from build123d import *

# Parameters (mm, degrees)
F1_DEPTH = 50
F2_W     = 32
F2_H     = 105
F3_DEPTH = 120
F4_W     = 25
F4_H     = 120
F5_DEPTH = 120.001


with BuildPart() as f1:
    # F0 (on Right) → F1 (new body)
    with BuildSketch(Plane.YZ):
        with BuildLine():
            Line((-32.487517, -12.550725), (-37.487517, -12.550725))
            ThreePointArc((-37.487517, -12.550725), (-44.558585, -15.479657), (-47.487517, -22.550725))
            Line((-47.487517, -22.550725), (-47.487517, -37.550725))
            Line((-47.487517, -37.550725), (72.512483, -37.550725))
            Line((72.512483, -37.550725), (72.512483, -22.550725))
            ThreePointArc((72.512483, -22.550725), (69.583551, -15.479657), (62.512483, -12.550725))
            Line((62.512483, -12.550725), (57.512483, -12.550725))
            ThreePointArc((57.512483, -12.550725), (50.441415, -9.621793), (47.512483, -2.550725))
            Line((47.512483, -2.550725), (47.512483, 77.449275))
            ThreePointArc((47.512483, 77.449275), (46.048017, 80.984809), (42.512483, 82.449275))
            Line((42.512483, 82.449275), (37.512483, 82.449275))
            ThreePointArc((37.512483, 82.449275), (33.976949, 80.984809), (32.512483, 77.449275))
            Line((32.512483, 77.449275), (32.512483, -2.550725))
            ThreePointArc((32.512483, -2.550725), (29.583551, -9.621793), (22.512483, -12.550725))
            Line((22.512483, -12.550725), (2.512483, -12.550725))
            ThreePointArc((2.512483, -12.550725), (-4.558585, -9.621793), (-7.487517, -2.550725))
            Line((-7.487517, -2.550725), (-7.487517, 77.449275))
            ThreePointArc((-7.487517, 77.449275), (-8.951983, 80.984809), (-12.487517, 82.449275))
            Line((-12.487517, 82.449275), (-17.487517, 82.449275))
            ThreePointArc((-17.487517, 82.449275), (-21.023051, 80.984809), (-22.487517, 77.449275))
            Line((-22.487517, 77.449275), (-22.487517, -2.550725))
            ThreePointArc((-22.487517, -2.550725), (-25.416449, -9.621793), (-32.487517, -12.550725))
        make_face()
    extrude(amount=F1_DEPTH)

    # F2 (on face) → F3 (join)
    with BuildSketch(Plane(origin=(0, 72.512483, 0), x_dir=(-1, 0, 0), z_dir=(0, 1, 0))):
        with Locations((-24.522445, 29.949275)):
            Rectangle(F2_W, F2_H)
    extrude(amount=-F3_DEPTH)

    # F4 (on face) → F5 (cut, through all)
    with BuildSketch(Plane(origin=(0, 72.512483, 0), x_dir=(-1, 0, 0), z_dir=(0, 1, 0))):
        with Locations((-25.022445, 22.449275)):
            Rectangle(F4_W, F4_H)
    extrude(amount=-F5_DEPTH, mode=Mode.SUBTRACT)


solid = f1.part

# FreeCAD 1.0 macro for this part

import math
import FreeCAD as App
import Part
import Sketcher

V = App.Vector
Q = App.Units.Quantity


def add_polygon(sketch, points):
    """Adds a closed chain of lines whose ends are joined by coincident constraints."""
    first, n = sketch.GeometryCount, len(points)
    for a, b in zip(points, points[1:] + points[:1]):
        sketch.addGeometry(Part.LineSegment(App.Vector(*a, 0), App.Vector(*b, 0)), False)
    for i in range(n):
        sketch.addConstraint(Sketcher.Constraint("Coincident", first + i, 2, first + (i + 1) % n, 1))

doc = App.newDocument("Part")
body = doc.addObject("PartDesign::Body", "Body")
body.AllowCompound = True

sketch1 = body.newObject("Sketcher::SketchObject", "Sketch")
sketch1.AttachmentSupport = (doc.getObject("YZ_Plane"), [""])
sketch1.MapMode = "FlatFace"
sketch1.addGeometry(Part.LineSegment(V(-32.487517, -12.550725, 0), V(-37.487517, -12.550725, 0)), False)
sketch1.addGeometry(Part.ArcOfCircle(Part.Circle(V(-37.487518, -22.550724, 0), V(0, 0, 1), 9.999999), math.radians(89.999996), math.radians(180.000004)), False)
sketch1.addGeometry(Part.LineSegment(V(-47.487517, -22.550725, 0), V(-47.487517, -37.550725, 0)), False)
sketch1.addGeometry(Part.LineSegment(V(-47.487517, -37.550725, 0), V(72.512483, -37.550725, 0)), False)
sketch1.addGeometry(Part.LineSegment(V(72.512483, -37.550725, 0), V(72.512483, -22.550725, 0)), False)
sketch1.addGeometry(Part.ArcOfCircle(Part.Circle(V(62.512484, -22.550724, 0), V(0, 0, 1), 9.999999), math.radians(-0.000004), math.radians(90.000004)), False)
sketch1.addGeometry(Part.LineSegment(V(62.512483, -12.550725, 0), V(57.512483, -12.550725, 0)), False)
sketch1.addGeometry(Part.ArcOfCircle(Part.Circle(V(57.512482, -2.550726, 0), V(0, 0, 1), 9.999999), math.radians(179.999996), math.radians(270.000004)), False)
sketch1.addGeometry(Part.LineSegment(V(47.512483, -2.550725, 0), V(47.512483, 77.449275, 0)), False)
sketch1.addGeometry(Part.ArcOfCircle(Part.Circle(V(42.512483, 77.449275, 0), V(0, 0, 1), 5), math.radians(-0.000004), math.radians(90.000004)), False)
sketch1.addGeometry(Part.LineSegment(V(42.512483, 82.449275, 0), V(37.512483, 82.449275, 0)), False)
sketch1.addGeometry(Part.ArcOfCircle(Part.Circle(V(37.512483, 77.449275, 0), V(0, 0, 1), 5), math.radians(89.999996), math.radians(180.000004)), False)
sketch1.addGeometry(Part.LineSegment(V(32.512483, 77.449275, 0), V(32.512483, -2.550725, 0)), False)
sketch1.addGeometry(Part.ArcOfCircle(Part.Circle(V(22.512484, -2.550726, 0), V(0, 0, 1), 9.999999), math.radians(-90.000004), math.radians(0.000004)), False)
sketch1.addGeometry(Part.LineSegment(V(22.512483, -12.550725, 0), V(2.512483, -12.550725, 0)), False)
sketch1.addGeometry(Part.ArcOfCircle(Part.Circle(V(2.512482, -2.550726, 0), V(0, 0, 1), 9.999999), math.radians(179.999996), math.radians(270.000004)), False)
sketch1.addGeometry(Part.LineSegment(V(-7.487517, -2.550725, 0), V(-7.487517, 77.449275, 0)), False)
sketch1.addGeometry(Part.ArcOfCircle(Part.Circle(V(-12.487517, 77.449275, 0), V(0, 0, 1), 5), math.radians(-0.000004), math.radians(90.000004)), False)
sketch1.addGeometry(Part.LineSegment(V(-12.487517, 82.449275, 0), V(-17.487517, 82.449275, 0)), False)
sketch1.addGeometry(Part.ArcOfCircle(Part.Circle(V(-17.487517, 77.449275, 0), V(0, 0, 1), 5), math.radians(89.999996), math.radians(180.000004)), False)
sketch1.addGeometry(Part.LineSegment(V(-22.487517, 77.449275, 0), V(-22.487517, -2.550725, 0)), False)
sketch1.addGeometry(Part.ArcOfCircle(Part.Circle(V(-32.487516, -2.550726, 0), V(0, 0, 1), 9.999999), math.radians(-90.000004), math.radians(0.000004)), False)
sketch1.addConstraint(Sketcher.Constraint("Tangent", 0, 2, 1, 1))
sketch1.addConstraint(Sketcher.Constraint("Tangent", 1, 2, 2, 1))
sketch1.addConstraint(Sketcher.Constraint("Coincident", 2, 2, 3, 1))
sketch1.addConstraint(Sketcher.Constraint("Coincident", 3, 2, 4, 1))
sketch1.addConstraint(Sketcher.Constraint("Tangent", 4, 2, 5, 1))
sketch1.addConstraint(Sketcher.Constraint("Tangent", 5, 2, 6, 1))
sketch1.addConstraint(Sketcher.Constraint("Tangent", 6, 2, 7, 2))
sketch1.addConstraint(Sketcher.Constraint("Tangent", 7, 1, 8, 1))
sketch1.addConstraint(Sketcher.Constraint("Tangent", 8, 2, 9, 1))
sketch1.addConstraint(Sketcher.Constraint("Tangent", 9, 2, 10, 1))
sketch1.addConstraint(Sketcher.Constraint("Tangent", 10, 2, 11, 1))
sketch1.addConstraint(Sketcher.Constraint("Tangent", 11, 2, 12, 1))
sketch1.addConstraint(Sketcher.Constraint("Tangent", 12, 2, 13, 2))
sketch1.addConstraint(Sketcher.Constraint("Tangent", 13, 1, 14, 1))
sketch1.addConstraint(Sketcher.Constraint("Tangent", 14, 2, 15, 2))
sketch1.addConstraint(Sketcher.Constraint("Tangent", 15, 1, 16, 1))
sketch1.addConstraint(Sketcher.Constraint("Tangent", 16, 2, 17, 1))
sketch1.addConstraint(Sketcher.Constraint("Tangent", 17, 2, 18, 1))
sketch1.addConstraint(Sketcher.Constraint("Tangent", 18, 2, 19, 1))
sketch1.addConstraint(Sketcher.Constraint("Tangent", 19, 2, 20, 1))
sketch1.addConstraint(Sketcher.Constraint("Tangent", 20, 2, 21, 2))
sketch1.addConstraint(Sketcher.Constraint("Tangent", 21, 1, 0, 1))
sketch1.addConstraint(Sketcher.Constraint("Horizontal", 0))
sketch1.addConstraint(Sketcher.Constraint("Vertical", 2))
sketch1.addConstraint(Sketcher.Constraint("Horizontal", 3))
sketch1.addConstraint(Sketcher.Constraint("Vertical", 4))
sketch1.addConstraint(Sketcher.Constraint("Horizontal", 6))
sketch1.addConstraint(Sketcher.Constraint("Vertical", 8))
sketch1.addConstraint(Sketcher.Constraint("Horizontal", 10))
sketch1.addConstraint(Sketcher.Constraint("Vertical", 12))
sketch1.addConstraint(Sketcher.Constraint("Horizontal", 14))
sketch1.addConstraint(Sketcher.Constraint("Vertical", 16))
sketch1.addConstraint(Sketcher.Constraint("Horizontal", 18))
sketch1.addConstraint(Sketcher.Constraint("Vertical", 20))
sketch1.addConstraint(Sketcher.Constraint("Equal", 1, 5))
sketch1.addConstraint(Sketcher.Constraint("Equal", 5, 7))
sketch1.addConstraint(Sketcher.Constraint("Equal", 9, 11))
sketch1.addConstraint(Sketcher.Constraint("Equal", 7, 13))
sketch1.addConstraint(Sketcher.Constraint("Equal", 13, 15))
sketch1.addConstraint(Sketcher.Constraint("Equal", 11, 17))
sketch1.addConstraint(Sketcher.Constraint("Equal", 17, 19))
sketch1.addConstraint(Sketcher.Constraint("Equal", 15, 21))
sketch1.addConstraint(Sketcher.Constraint("Horizontal", 1, 3, 5, 3))
sketch1.addConstraint(Sketcher.Constraint("Horizontal", 7, 3, 13, 3))
sketch1.addConstraint(Sketcher.Constraint("Horizontal", 11, 3, 17, 3))
sketch1.addConstraint(Sketcher.Constraint("Equal", 0, 6))
sketch1.addConstraint(Sketcher.Constraint("Equal", 6, 10))
sketch1.addConstraint(Sketcher.Constraint("Equal", 10, 18))
sketch1.addConstraint(Sketcher.Constraint("Radius", 1, Q("9.999999 mm")))
sketch1.addConstraint(Sketcher.Constraint("Radius", 9, Q("5 mm")))
sketch1.addConstraint(Sketcher.Constraint("DistanceX", 0, 2, 0, 1, Q("5 mm")))
sketch1.addConstraint(Sketcher.Constraint("DistanceX", 3, 1, 3, 2, Q("120 mm")))
sketch1.addConstraint(Sketcher.Constraint("DistanceY", 2, 2, 2, 1, Q("15 mm")))
sketch1.addConstraint(Sketcher.Constraint("DistanceY", 8, 1, 8, 2, Q("80 mm")))
sketch1.addConstraint(Sketcher.Constraint("DistanceX", 1, 3, -1, 1, Q("37.487518 mm")))
sketch1.addConstraint(Sketcher.Constraint("DistanceY", 1, 3, -1, 1, Q("22.550724 mm")))
pad1 = body.newObject("PartDesign::Pad", "Pad")
pad1.Profile = sketch1
pad1.Length = 50

sketch2 = body.newObject("Sketcher::SketchObject", "Sketch001")
sketch2.AttachmentSupport = (doc.getObject("XZ_Plane"), [""])
sketch2.MapMode = "FlatFace"
sketch2.AttachmentOffset = App.Placement(V(0, 0, -72.512483), App.Rotation())
add_polygon(sketch2, [(40.522445, 82.449275), (40.522445, -22.550725), (8.522445, -22.550725), (8.522445, 82.449275)])
sketch2.addConstraint(Sketcher.Constraint("Vertical", 0))
sketch2.addConstraint(Sketcher.Constraint("Horizontal", 1))
sketch2.addConstraint(Sketcher.Constraint("Vertical", 2))
sketch2.addConstraint(Sketcher.Constraint("Horizontal", 3))
sketch2.addConstraint(Sketcher.Constraint("DistanceX", 1, 2, 1, 1, Q("32 mm")))
sketch2.addConstraint(Sketcher.Constraint("DistanceY", 0, 2, 0, 1, Q("105 mm")))
sketch2.addConstraint(Sketcher.Constraint("DistanceX", -1, 1, 0, 2, Q("40.522445 mm")))
sketch2.addConstraint(Sketcher.Constraint("DistanceY", 0, 2, -1, 1, Q("22.550725 mm")))
pad2 = body.newObject("PartDesign::Pad", "Pad001")
pad2.Profile = sketch2
pad2.Length = 120

sketch3 = body.newObject("Sketcher::SketchObject", "Sketch002")
sketch3.AttachmentSupport = (doc.getObject("XZ_Plane"), [""])
sketch3.MapMode = "FlatFace"
sketch3.AttachmentOffset = App.Placement(V(0, 0, -72.512483), App.Rotation())
add_polygon(sketch3, [(37.522445, 82.449275), (37.522445, -37.550725), (12.522445, -37.550725), (12.522445, 82.449275)])
sketch3.addConstraint(Sketcher.Constraint("Vertical", 0))
sketch3.addConstraint(Sketcher.Constraint("Horizontal", 1))
sketch3.addConstraint(Sketcher.Constraint("Vertical", 2))
sketch3.addConstraint(Sketcher.Constraint("Horizontal", 3))
sketch3.addConstraint(Sketcher.Constraint("DistanceX", 1, 2, 1, 1, Q("25 mm")))
sketch3.addConstraint(Sketcher.Constraint("DistanceY", 0, 2, 0, 1, Q("120 mm")))
sketch3.addConstraint(Sketcher.Constraint("DistanceX", -1, 1, 0, 2, Q("37.522445 mm")))
sketch3.addConstraint(Sketcher.Constraint("DistanceY", 0, 2, -1, 1, Q("37.550725 mm")))
pocket1 = body.newObject("PartDesign::Pocket", "Pocket")
pocket1.Profile = sketch3
pocket1.Type = "ThroughAll"
pocket1.Reversed = True

doc.recompute()
